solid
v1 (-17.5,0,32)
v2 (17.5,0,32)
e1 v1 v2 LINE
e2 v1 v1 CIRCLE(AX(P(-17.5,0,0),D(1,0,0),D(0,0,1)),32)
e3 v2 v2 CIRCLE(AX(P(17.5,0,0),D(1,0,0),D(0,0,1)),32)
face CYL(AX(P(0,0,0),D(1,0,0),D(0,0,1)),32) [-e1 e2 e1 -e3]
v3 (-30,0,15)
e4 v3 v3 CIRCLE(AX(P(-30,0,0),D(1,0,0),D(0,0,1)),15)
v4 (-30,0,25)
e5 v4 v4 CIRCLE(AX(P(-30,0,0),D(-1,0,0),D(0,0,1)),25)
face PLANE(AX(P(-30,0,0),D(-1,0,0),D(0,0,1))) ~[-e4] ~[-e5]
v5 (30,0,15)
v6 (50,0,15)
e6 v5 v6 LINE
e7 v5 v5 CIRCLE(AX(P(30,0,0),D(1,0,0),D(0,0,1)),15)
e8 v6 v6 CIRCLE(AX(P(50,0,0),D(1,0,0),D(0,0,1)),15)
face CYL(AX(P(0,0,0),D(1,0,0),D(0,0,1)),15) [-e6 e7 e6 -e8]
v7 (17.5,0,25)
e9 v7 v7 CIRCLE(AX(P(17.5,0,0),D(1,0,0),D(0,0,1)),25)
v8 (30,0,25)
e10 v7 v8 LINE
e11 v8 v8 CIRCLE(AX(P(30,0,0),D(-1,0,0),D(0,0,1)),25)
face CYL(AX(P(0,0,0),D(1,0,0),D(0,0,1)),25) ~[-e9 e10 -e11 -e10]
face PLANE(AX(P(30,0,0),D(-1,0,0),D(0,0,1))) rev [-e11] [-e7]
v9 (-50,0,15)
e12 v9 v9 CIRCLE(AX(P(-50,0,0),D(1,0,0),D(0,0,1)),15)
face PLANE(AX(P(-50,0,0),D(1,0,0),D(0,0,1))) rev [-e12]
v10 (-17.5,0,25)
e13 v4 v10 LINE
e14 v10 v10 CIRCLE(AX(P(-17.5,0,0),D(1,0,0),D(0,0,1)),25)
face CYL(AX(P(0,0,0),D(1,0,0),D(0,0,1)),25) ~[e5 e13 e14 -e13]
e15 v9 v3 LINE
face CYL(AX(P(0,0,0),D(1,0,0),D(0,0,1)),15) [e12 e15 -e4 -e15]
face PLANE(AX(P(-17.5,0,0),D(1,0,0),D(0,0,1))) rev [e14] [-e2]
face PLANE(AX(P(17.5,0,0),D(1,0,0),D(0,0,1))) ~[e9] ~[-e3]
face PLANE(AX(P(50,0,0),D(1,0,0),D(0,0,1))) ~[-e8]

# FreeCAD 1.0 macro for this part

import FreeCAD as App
import Part
import Sketcher
from FreeCAD import Vector
Q = App.Units.Quantity

doc = App.newDocument("Part")
body = doc.addObject("PartDesign::Body", "Body")

# Sketch on XZ plane
sketch1 = doc.addObject("Sketcher::SketchObject", "Sketch")
body.addObject(sketch1)
sketch1.AttachmentSupport = (doc.XZ_Plane, [""])
sketch1.MapMode = "FlatFace"
sketch1.addGeometry(Part.LineSegment(Vector(-50, 15, 0), Vector(-50, 0, 0)), False)
sketch1.addGeometry(Part.LineSegment(Vector(-50, 0, 0), Vector(50, 0, 0)), False)
sketch1.addGeometry(Part.LineSegment(Vector(50, 0, 0), Vector(50, 15, 0)), False)
sketch1.addGeometry(Part.LineSegment(Vector(50, 15, 0), Vector(-50, 15, 0)), False)
sketch1.addConstraint(Sketcher.Constraint("Coincident", 0, 2, 1, 1))
sketch1.addConstraint(Sketcher.Constraint("Coincident", 1, 2, 2, 1))
sketch1.addConstraint(Sketcher.Constraint("Coincident", 2, 2, 3, 1))
sketch1.addConstraint(Sketcher.Constraint("Coincident", 3, 2, 0, 1))
sketch1.addConstraint(Sketcher.Constraint("Vertical", 0))
sketch1.addConstraint(Sketcher.Constraint("Horizontal", 1))
sketch1.addConstraint(Sketcher.Constraint("Vertical", 2))
sketch1.addConstraint(Sketcher.Constraint("Horizontal", 3))
sketch1.addConstraint(Sketcher.Constraint("Symmetric", 0, 2, 1, 2, -1, 1))
sketch1.addConstraint(Sketcher.Constraint("DistanceX", 1, 1, 1, 2, Q("100 mm")))
sketch1.addConstraint(Sketcher.Constraint("DistanceY", 0, 2, 0, 1, Q("15 mm")))
revolution = doc.addObject("PartDesign::Revolution", "Revolution")
body.addObject(revolution)
revolution.Profile = sketch1
revolution.ReferenceAxis = (sketch1, ["H_Axis"])
revolution.Angle = 360

# Sketch on XZ plane
sketch2 = doc.addObject("Sketcher::SketchObject", "Sketch001")
body.addObject(sketch2)
sketch2.AttachmentSupport = (doc.XZ_Plane, [""])
sketch2.MapMode = "FlatFace"
sketch2.addGeometry(Part.LineSegment(Vector(-30, 25, 0), Vector(-30, 0, 0)), False)
sketch2.addGeometry(Part.LineSegment(Vector(-30, 0, 0), Vector(30, 0, 0)), False)
sketch2.addGeometry(Part.LineSegment(Vector(30, 0, 0), Vector(30, 25, 0)), False)
sketch2.addGeometry(Part.LineSegment(Vector(30, 25, 0), Vector(-30, 25, 0)), False)
sketch2.addConstraint(Sketcher.Constraint("Coincident", 0, 2, 1, 1))
sketch2.addConstraint(Sketcher.Constraint("Coincident", 1, 2, 2, 1))
sketch2.addConstraint(Sketcher.Constraint("Coincident", 2, 2, 3, 1))
sketch2.addConstraint(Sketcher.Constraint("Coincident", 3, 2, 0, 1))
sketch2.addConstraint(Sketcher.Constraint("Vertical", 0))
sketch2.addConstraint(Sketcher.Constraint("Horizontal", 1))
sketch2.addConstraint(Sketcher.Constraint("Vertical", 2))
sketch2.addConstraint(Sketcher.Constraint("Horizontal", 3))
sketch2.addConstraint(Sketcher.Constraint("Symmetric", 0, 2, 1, 2, -1, 1))
sketch2.addConstraint(Sketcher.Constraint("DistanceX", 1, 1, 1, 2, Q("60 mm")))
sketch2.addConstraint(Sketcher.Constraint("DistanceY", 0, 2, 0, 1, Q("25 mm")))
revolution2 = doc.addObject("PartDesign::Revolution", "Revolution001")
body.addObject(revolution2)
revolution2.Profile = sketch2
revolution2.ReferenceAxis = (sketch2, ["H_Axis"])
revolution2.Angle = 360

# Sketch on XZ plane
sketch3 = doc.addObject("Sketcher::SketchObject", "Sketch002")
body.addObject(sketch3)
sketch3.AttachmentSupport = (doc.XZ_Plane, [""])
sketch3.MapMode = "FlatFace"
sketch3.addGeometry(Part.LineSegment(Vector(-18, 32, 0), Vector(-18, 0, 0)), False)
sketch3.addGeometry(Part.LineSegment(Vector(-18, 0, 0), Vector(18, 0, 0)), False)
sketch3.addGeometry(Part.LineSegment(Vector(18, 0, 0), Vector(18, 32, 0)), False)
sketch3.addGeometry(Part.LineSegment(Vector(18, 32, 0), Vector(-18, 32, 0)), False)
sketch3.addConstraint(Sketcher.Constraint("Coincident", 0, 2, 1, 1))
sketch3.addConstraint(Sketcher.Constraint("Coincident", 1, 2, 2, 1))
sketch3.addConstraint(Sketcher.Constraint("Coincident", 2, 2, 3, 1))
sketch3.addConstraint(Sketcher.Constraint("Coincident", 3, 2, 0, 1))
sketch3.addConstraint(Sketcher.Constraint("Vertical", 0))
sketch3.addConstraint(Sketcher.Constraint("Horizontal", 1))
sketch3.addConstraint(Sketcher.Constraint("Vertical", 2))
sketch3.addConstraint(Sketcher.Constraint("Horizontal", 3))
sketch3.addConstraint(Sketcher.Constraint("Symmetric", 0, 2, 1, 2, -1, 1))
sketch3.addConstraint(Sketcher.Constraint("DistanceX", 1, 1, 1, 2, Q("35 mm")))
sketch3.addConstraint(Sketcher.Constraint("DistanceY", 0, 2, 0, 1, Q("32 mm")))
revolution3 = doc.addObject("PartDesign::Revolution", "Revolution002")
body.addObject(revolution3)
revolution3.Profile = sketch3
revolution3.ReferenceAxis = (sketch3, ["H_Axis"])
revolution3.Angle = 360

doc.recompute()
